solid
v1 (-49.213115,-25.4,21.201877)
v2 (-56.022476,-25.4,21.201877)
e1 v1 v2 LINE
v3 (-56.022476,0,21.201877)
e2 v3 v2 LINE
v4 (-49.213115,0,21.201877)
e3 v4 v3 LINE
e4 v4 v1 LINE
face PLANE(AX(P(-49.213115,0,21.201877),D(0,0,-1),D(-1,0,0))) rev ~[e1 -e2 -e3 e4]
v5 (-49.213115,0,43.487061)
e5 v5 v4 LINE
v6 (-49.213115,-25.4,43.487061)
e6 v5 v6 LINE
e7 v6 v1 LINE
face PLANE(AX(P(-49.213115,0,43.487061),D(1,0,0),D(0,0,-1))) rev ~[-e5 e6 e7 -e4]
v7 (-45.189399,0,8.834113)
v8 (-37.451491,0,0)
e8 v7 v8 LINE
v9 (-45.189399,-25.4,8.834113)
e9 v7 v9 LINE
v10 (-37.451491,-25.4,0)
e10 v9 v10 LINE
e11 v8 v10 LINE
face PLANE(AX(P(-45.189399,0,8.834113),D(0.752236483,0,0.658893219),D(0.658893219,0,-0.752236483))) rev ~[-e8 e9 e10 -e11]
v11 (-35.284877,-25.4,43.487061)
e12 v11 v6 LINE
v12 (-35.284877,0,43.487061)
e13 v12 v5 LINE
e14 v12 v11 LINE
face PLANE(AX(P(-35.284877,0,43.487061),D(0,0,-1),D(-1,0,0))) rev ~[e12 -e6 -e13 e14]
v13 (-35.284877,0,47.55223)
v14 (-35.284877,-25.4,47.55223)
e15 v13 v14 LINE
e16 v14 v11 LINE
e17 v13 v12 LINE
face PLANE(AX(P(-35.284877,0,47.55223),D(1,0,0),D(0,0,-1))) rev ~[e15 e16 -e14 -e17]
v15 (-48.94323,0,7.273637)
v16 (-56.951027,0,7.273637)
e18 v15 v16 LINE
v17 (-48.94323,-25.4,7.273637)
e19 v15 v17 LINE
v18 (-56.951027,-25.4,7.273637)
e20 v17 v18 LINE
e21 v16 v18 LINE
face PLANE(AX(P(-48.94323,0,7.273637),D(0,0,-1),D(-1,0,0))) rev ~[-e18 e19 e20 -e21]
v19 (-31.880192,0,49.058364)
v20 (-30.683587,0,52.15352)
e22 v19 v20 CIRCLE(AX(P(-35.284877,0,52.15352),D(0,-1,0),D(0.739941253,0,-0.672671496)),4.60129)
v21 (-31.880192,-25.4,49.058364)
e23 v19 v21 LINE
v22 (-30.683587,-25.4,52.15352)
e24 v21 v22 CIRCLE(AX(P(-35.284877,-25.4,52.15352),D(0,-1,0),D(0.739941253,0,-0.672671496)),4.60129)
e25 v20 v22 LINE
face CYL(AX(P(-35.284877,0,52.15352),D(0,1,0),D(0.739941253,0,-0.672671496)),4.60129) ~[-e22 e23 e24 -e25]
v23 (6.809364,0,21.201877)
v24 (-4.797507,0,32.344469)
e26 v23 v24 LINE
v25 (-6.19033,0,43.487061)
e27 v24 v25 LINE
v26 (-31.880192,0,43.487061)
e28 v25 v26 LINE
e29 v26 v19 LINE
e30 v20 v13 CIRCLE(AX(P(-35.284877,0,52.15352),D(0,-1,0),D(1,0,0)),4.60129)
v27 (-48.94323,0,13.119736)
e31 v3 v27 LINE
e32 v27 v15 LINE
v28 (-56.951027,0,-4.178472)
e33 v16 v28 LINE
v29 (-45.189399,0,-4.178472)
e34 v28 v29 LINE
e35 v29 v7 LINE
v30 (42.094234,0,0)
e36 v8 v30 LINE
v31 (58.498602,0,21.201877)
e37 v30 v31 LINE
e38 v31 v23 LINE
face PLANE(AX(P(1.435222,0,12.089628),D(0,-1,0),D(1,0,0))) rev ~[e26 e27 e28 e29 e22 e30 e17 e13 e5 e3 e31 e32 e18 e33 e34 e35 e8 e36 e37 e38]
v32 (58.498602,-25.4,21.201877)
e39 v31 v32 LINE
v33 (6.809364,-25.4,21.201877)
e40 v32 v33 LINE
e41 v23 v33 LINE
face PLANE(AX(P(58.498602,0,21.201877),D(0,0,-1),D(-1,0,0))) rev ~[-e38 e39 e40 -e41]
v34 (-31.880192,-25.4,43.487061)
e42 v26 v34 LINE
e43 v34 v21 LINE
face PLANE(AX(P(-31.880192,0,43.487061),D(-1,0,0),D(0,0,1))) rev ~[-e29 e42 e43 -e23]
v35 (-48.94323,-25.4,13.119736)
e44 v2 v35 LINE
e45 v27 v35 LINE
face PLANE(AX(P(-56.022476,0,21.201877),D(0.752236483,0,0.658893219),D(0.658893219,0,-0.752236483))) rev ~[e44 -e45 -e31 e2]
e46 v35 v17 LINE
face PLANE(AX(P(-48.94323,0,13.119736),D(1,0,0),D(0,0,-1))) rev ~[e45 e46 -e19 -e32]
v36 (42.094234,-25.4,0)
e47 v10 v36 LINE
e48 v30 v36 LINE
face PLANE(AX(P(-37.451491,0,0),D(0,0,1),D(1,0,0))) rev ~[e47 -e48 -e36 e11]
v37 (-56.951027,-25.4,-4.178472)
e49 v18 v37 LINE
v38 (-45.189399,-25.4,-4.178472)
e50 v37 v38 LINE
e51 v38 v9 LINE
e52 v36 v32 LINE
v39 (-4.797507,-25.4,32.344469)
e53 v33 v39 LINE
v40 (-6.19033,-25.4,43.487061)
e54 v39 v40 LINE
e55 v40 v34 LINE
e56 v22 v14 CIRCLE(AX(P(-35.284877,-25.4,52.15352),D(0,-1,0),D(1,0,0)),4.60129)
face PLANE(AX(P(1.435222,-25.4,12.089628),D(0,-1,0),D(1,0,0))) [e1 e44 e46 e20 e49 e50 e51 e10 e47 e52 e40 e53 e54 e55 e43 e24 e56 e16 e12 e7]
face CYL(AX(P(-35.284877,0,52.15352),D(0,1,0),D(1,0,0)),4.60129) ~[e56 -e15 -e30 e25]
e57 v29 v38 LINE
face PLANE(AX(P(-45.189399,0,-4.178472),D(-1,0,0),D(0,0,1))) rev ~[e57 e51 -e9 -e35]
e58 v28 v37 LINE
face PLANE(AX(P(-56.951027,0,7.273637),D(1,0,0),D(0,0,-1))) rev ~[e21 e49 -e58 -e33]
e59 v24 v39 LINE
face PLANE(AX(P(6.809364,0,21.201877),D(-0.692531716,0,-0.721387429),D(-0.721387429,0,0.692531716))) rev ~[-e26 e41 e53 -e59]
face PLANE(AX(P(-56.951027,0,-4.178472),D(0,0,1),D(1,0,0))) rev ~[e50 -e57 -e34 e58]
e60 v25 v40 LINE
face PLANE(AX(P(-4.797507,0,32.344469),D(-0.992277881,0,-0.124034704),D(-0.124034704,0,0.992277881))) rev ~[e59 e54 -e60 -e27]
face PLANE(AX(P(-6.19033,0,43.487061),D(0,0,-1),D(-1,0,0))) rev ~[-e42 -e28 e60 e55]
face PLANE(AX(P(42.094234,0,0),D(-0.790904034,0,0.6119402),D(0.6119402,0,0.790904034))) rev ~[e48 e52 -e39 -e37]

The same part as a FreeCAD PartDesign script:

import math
import FreeCAD as App
import Part
import Sketcher
Q = App.Units.Quantity

doc = App.newDocument("Part")
body = doc.addObject("PartDesign::Body", "Body")

# Sketch on XZ plane
sketch1 = body.newObject("Sketcher::SketchObject", "Sketch")
sketch1.AttachmentSupport = (doc.getObject("XZ_Plane"), [""])
sketch1.MapMode = "FlatFace"
sketch1.addGeometry([
    Part.LineSegment(App.Vector(-56.022476, 21.201877, 0), App.Vector(-48.94323, 13.119736, 0)),  # 0
    Part.LineSegment(App.Vector(-48.94323, 13.119736, 0), App.Vector(-48.94323, 7.273637, 0)),  # 1
    Part.LineSegment(App.Vector(-48.94323, 7.273637, 0), App.Vector(-56.951027, 7.273637, 0)),  # 2
    Part.LineSegment(App.Vector(-56.951027, 7.273637, 0), App.Vector(-56.951027, -4.178472, 0)),  # 3
    Part.LineSegment(App.Vector(-56.951027, -4.178472, 0), App.Vector(-45.189399, -4.178472, 0)),  # 4
    Part.LineSegment(App.Vector(-45.189399, -4.178472, 0), App.Vector(-45.189399, 8.834113, 0)),  # 5
    Part.LineSegment(App.Vector(-45.189399, 8.834113, 0), App.Vector(-37.451491, 0, 0)),  # 6
    Part.LineSegment(App.Vector(-37.451491, 0, 0), App.Vector(42.094234, 0, 0)),  # 7
    Part.LineSegment(App.Vector(42.094234, 0, 0), App.Vector(58.498602, 21.201877, 0)),  # 8
    Part.LineSegment(App.Vector(58.498602, 21.201877, 0), App.Vector(6.809364, 21.201877, 0)),  # 9
    Part.LineSegment(App.Vector(6.809364, 21.201877, 0), App.Vector(-4.797507, 32.344469, 0)),  # 10
    Part.LineSegment(App.Vector(-4.797507, 32.344469, 0), App.Vector(-6.19033, 43.487061, 0)),  # 11
    Part.LineSegment(App.Vector(-6.19033, 43.487061, 0), App.Vector(-31.880192, 43.487061, 0)),  # 12
    Part.LineSegment(App.Vector(-31.880192, 43.487061, 0), App.Vector(-31.880192, 49.058364, 0)),  # 13
    Part.ArcOfCircle(Part.Circle(App.Vector(-35.284877, 52.15352, 0), App.Vector(0, 0, 1), 4.60129), math.radians(-42.273589), math.radians(0)),  # 14
    Part.ArcOfCircle(Part.Circle(App.Vector(-35.284877, 52.15352, 0), App.Vector(0, 0, 1), 4.60129), math.radians(0), math.radians(270)),  # 15
    Part.LineSegment(App.Vector(-35.284877, 47.55223, 0), App.Vector(-35.284877, 43.487061, 0)),  # 16
    Part.LineSegment(App.Vector(-35.284877, 43.487061, 0), App.Vector(-49.213115, 43.487061, 0)),  # 17
    Part.LineSegment(App.Vector(-49.213115, 43.487061, 0), App.Vector(-49.213115, 21.201877, 0)),  # 18
    Part.LineSegment(App.Vector(-49.213115, 21.201877, 0), App.Vector(-56.022476, 21.201877, 0)),  # 19
], False)
sketch1.addConstraint([
    Sketcher.Constraint("Coincident", 0, 2, 1, 1),
    Sketcher.Constraint("Coincident", 1, 2, 2, 1),
    Sketcher.Constraint("Coincident", 2, 2, 3, 1),
    Sketcher.Constraint("Coincident", 3, 2, 4, 1),
    Sketcher.Constraint("Coincident", 4, 2, 5, 1),
    Sketcher.Constraint("Coincident", 5, 2, 6, 1),
    Sketcher.Constraint("Coincident", 6, 2, 7, 1),
    Sketcher.Constraint("Coincident", 7, 2, 8, 1),
    Sketcher.Constraint("Coincident", 8, 2, 9, 1),
    Sketcher.Constraint("Coincident", 9, 2, 10, 1),
    Sketcher.Constraint("Coincident", 10, 2, 11, 1),
    Sketcher.Constraint("Coincident", 11, 2, 12, 1),
    Sketcher.Constraint("Coincident", 12, 2, 13, 1),
    Sketcher.Constraint("Coincident", 13, 2, 14, 1),
    Sketcher.Constraint("Tangent", 14, 2, 15, 1),
    Sketcher.Constraint("Coincident", 15, 2, 16, 1),
    Sketcher.Constraint("Coincident", 16, 2, 17, 1),
    Sketcher.Constraint("Coincident", 17, 2, 18, 1),
    Sketcher.Constraint("Coincident", 18, 2, 19, 1),
    Sketcher.Constraint("Coincident", 19, 2, 0, 1),
    Sketcher.Constraint("Vertical", 1),
    Sketcher.Constraint("Horizontal", 2),
    Sketcher.Constraint("Vertical", 3),
    Sketcher.Constraint("Horizontal", 4),
    Sketcher.Constraint("Vertical", 5),
    Sketcher.Constraint("Horizontal", 7),
    Sketcher.Constraint("Horizontal", 9),
    Sketcher.Constraint("Horizontal", 12),
    Sketcher.Constraint("Vertical", 13),
    Sketcher.Constraint("Vertical", 16),
    Sketcher.Constraint("Horizontal", 17),
    Sketcher.Constraint("Vertical", 18),
    Sketcher.Constraint("Horizontal", 19),
    Sketcher.Constraint("Equal", 14, 15),
    Sketcher.Constraint("PointOnObject", 6, 2, -1),
    Sketcher.Constraint("Parallel", 0, 6),
    Sketcher.Constraint("Horizontal", 15, 3, 14, 2),
    Sketcher.Constraint("Horizontal", 12, 2, 16, 2),
    Sketcher.Constraint("Horizontal", 9, 2, 18, 2),
    Sketcher.Constraint("Vertical", 14, 3, 15, 2),
    Sketcher.Constraint("Radius", 14, 4.60129),
    Sketcher.Constraint("DistanceY", 1, 2, 1, 1, 5.8461),
    Sketcher.Constraint("DistanceX", 4, 1, 4, 2, 11.761628),
    Sketcher.Constraint("DistanceX", 9, 2, 9, 1, 51.689239),
    Sketcher.Constraint("DistanceX", 17, 2, 17, 1, 13.928238),
    Sketcher.Constraint("DistanceX", 19, 2, 19, 1, 6.809361),
    Sketcher.Constraint("DistanceY", 3, 2, 3, 1, 11.452109),
    Sketcher.Constraint("DistanceY", 16, 2, 16, 1, 4.065169),
    Sketcher.Constraint("DistanceX", 4, 2, -1, 1, 45.189399),
    Sketcher.Constraint("DistanceX", 5, 2, 8, 2, 103.688002),
    Sketcher.Constraint("Distance", 0, 10.744149),
    Sketcher.Constraint("Distance", 10, 16.089649),
    Sketcher.Constraint("DistanceX", 2, 2, 2, 1, 8.007798),
    Sketcher.Constraint("DistanceX", 7, 1, 7, 2, 79.545725),
    Sketcher.Constraint("DistanceX", 12, 2, 12, 1, 25.689862),
    Sketcher.Constraint("DistanceY", 5, 1, 5, 2, 13.012585),
    Sketcher.Constraint("DistanceY", 13, 1, 13, 2, 5.571303),
    Sketcher.Constraint("DistanceY", 18, 2, 18, 1, 22.285184),
    Sketcher.Constraint("DistanceY", -1, 1, 14, 3, 52.15352),
    Sketcher.Constraint("DistanceY", 3, 2, -1, 1, 4.178472),
    Sketcher.Constraint("DistanceY", -1, 1, 10, 2, 32.344469),
])
pad1 = body.newObject("PartDesign::Pad", "Pad")
pad1.Profile = sketch1
pad1.Length = Q("1 in")

doc.recompute()
